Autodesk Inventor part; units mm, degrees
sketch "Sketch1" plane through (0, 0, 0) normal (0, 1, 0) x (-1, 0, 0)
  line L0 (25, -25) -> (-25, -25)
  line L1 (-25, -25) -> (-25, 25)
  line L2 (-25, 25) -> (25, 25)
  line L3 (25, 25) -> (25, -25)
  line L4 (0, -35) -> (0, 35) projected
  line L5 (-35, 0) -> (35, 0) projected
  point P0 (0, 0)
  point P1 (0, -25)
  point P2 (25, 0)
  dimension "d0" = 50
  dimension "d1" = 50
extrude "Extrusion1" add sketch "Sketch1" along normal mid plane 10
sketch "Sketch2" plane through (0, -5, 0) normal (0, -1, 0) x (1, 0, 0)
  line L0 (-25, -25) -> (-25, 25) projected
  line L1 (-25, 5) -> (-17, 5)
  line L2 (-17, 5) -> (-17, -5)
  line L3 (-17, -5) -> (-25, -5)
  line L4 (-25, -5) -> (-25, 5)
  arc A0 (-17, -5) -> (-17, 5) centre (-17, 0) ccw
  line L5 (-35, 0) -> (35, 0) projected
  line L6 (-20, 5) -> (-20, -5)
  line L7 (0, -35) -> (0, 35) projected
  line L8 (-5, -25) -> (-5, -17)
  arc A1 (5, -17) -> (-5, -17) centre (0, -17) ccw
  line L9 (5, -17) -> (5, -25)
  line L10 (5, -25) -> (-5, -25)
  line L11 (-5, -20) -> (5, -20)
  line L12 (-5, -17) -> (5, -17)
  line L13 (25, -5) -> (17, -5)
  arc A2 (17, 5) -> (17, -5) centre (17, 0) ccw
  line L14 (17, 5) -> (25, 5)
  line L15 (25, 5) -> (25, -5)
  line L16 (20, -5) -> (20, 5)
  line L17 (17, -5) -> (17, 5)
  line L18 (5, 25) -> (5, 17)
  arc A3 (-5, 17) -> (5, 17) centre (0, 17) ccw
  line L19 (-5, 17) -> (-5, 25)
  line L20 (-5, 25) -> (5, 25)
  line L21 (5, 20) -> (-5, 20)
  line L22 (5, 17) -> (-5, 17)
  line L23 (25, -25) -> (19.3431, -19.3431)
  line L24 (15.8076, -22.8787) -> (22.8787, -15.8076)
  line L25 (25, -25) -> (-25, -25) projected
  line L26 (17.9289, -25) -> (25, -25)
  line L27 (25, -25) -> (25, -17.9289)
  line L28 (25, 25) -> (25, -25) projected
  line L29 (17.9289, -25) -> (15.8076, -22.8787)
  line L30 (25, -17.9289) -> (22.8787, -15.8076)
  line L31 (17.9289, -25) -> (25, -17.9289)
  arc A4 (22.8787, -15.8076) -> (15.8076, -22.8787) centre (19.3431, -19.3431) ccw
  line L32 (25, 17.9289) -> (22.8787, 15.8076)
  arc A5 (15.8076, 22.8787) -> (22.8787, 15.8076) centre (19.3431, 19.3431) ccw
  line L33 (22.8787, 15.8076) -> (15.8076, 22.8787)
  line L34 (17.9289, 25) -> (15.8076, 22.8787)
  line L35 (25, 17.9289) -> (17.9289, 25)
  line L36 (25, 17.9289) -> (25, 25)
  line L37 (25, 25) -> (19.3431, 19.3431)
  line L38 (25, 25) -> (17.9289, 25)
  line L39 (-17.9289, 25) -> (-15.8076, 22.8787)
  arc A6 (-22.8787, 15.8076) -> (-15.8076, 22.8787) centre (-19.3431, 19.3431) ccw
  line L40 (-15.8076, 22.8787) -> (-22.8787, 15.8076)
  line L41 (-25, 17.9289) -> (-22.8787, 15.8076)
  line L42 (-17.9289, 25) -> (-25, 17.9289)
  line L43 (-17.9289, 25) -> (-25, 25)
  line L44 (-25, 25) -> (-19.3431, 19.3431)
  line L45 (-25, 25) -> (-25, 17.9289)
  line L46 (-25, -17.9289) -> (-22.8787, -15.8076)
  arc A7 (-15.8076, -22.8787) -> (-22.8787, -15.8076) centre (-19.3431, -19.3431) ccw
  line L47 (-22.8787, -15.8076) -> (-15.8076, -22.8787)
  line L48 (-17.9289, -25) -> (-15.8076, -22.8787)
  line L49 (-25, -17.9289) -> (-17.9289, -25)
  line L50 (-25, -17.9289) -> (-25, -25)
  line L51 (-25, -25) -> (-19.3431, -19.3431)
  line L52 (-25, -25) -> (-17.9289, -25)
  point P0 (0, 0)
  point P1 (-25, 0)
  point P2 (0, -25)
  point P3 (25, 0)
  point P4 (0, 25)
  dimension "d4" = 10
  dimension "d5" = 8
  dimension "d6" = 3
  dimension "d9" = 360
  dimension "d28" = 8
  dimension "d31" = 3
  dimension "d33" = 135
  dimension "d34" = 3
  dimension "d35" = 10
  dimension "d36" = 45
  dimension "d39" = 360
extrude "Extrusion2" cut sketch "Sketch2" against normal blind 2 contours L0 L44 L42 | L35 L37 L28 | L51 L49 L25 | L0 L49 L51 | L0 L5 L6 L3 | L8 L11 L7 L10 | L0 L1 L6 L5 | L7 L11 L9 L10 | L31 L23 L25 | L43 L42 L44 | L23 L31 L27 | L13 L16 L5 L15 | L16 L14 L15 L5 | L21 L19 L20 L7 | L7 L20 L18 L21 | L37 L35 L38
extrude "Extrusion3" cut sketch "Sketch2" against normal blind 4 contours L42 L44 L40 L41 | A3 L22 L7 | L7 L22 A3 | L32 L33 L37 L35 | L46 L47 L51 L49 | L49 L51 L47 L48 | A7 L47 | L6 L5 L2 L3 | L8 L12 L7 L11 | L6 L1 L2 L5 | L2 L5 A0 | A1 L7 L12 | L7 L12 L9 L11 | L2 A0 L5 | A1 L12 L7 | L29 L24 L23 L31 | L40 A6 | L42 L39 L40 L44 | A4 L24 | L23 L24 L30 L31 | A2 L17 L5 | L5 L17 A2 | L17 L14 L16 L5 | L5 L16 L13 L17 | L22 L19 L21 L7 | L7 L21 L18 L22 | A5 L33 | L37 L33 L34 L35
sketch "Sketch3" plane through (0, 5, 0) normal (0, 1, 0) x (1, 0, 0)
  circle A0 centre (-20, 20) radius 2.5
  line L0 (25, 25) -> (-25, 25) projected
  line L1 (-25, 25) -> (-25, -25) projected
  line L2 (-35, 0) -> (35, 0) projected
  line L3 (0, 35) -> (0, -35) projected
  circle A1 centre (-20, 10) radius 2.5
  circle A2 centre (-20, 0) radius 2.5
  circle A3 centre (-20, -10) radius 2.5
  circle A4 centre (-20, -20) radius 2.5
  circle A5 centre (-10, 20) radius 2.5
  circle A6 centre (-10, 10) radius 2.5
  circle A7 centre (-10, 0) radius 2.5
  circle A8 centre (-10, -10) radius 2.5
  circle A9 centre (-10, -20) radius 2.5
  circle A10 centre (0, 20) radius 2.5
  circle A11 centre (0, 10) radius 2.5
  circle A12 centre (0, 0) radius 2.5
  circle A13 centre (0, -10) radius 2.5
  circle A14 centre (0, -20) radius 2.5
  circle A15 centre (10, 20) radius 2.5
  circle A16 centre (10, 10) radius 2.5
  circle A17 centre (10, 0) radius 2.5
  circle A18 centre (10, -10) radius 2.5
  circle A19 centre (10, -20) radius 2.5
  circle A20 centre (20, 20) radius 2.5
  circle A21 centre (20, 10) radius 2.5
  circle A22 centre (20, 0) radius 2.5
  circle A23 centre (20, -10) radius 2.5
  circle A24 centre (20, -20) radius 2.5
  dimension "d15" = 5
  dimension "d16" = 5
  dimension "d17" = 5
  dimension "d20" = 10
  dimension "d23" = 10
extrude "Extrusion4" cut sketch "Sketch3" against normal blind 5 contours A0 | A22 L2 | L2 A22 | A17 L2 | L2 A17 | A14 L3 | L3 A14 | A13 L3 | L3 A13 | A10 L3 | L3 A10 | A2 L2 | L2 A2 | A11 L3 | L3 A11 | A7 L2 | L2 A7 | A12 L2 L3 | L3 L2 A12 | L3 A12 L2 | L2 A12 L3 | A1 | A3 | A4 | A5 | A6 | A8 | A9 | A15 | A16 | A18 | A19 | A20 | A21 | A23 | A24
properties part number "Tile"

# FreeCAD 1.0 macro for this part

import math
import FreeCAD as App
import Part
import Sketcher

V = App.Vector
Q = App.Units.Quantity

doc = App.newDocument("Part")
params = doc.addObject("Spreadsheet::Sheet", "Params")
for row, (alias, value) in enumerate([
    ("sketch1_width", "50 mm"),
    ("pad1_length", "10 mm"),
    ("sketch2_width", "10 mm"),
    ("sketch2_length", "10 mm"),
    ("sketch2_width2", "5 mm"),
    ("pocket1_length", "2 mm"),
    ("sketch3_radius", "5 mm"),
    ("sketch3_width", "3 mm"),
    ("sketch3_length", "3 mm"),
    ("pocket2_length", "4 mm"),
    ("sketch4_diameter", "5 mm"),
    ("pocket3_length", "5 mm"),
], start=1):
    params.set(f"A{row}", alias)
    params.set(f"B{row}", "=" + value)
    params.setAlias(f"B{row}", alias)

body = doc.addObject("PartDesign::Body", "Body")

sketch1 = body.newObject("Sketcher::SketchObject", "Sketch")
sketch1.AttachmentSupport = (doc.getObject("XZ_Plane"), [""])
sketch1.MapMode = "FlatFace"
sketch1.addGeometry([
    Part.LineSegment(V(-25, -25, 0), V(-25, 25, 0)),
    Part.LineSegment(V(-25, 25, 0), V(25, 25, 0)),
    Part.LineSegment(V(25, 25, 0), V(25, -25, 0)),
    Part.LineSegment(V(25, -25, 0), V(-25, -25, 0)),
], False)
sketch1.addConstraint([
    Sketcher.Constraint("Coincident", 0, 2, 1, 1),
    Sketcher.Constraint("Coincident", 1, 2, 2, 1),
    Sketcher.Constraint("Coincident", 2, 2, 3, 1),
    Sketcher.Constraint("Coincident", 3, 2, 0, 1),
    Sketcher.Constraint("Vertical", 0),
    Sketcher.Constraint("Horizontal", 1),
    Sketcher.Constraint("Vertical", 2),
    Sketcher.Constraint("Horizontal", 3),
    Sketcher.Constraint("Symmetric", 0, 2, 2, 2, -1, 1),
    Sketcher.Constraint("Equal", 3, 0),
    Sketcher.Constraint("DistanceX", 1, 1, 1, 2, Q("50 mm")),
])
sketch1.setExpression("Constraints[10]", "Params.sketch1_width")
pad1 = body.newObject("PartDesign::Pad", "Pad")
pad1.Profile = sketch1
pad1.setExpression("Length", "Params.pad1_length")
pad1.Midplane = True

sketch2 = body.newObject("Sketcher::SketchObject", "Sketch001")
sketch2.AttachmentSupport = (doc.getObject("XZ_Plane"), [""])
sketch2.MapMode = "FlatFace"
sketch2.AttachmentOffset = App.Placement(V(0, 0, 5), App.Rotation())
sketch2.addGeometry([
    Part.LineSegment(V(-25, 25, 0), V(-25, 18, 0)),
    Part.LineSegment(V(-25, 18, 0), V(-18, 25, 0)),
    Part.LineSegment(V(-18, 25, 0), V(-25, 25, 0)),
    Part.LineSegment(V(25, 18, 0), V(25, 25, 0)),
    Part.LineSegment(V(25, 25, 0), V(18, 25, 0)),
    Part.LineSegment(V(18, 25, 0), V(25, 18, 0)),
    Part.LineSegment(V(-18, -25, 0), V(-25, -18, 0)),
    Part.LineSegment(V(-25, -18, 0), V(-25, -25, 0)),
    Part.LineSegment(V(-25, -25, 0), V(-18, -25, 0)),
    Part.LineSegment(V(-25, -5, 0), V(-20, -5, 0)),
    Part.LineSegment(V(-20, -5, 0), V(-20, 5, 0)),
    Part.LineSegment(V(-20, 5, 0), V(-25, 5, 0)),
    Part.LineSegment(V(-25, 5, 0), V(-25, -5, 0)),
    Part.LineSegment(V(-5, -20, 0), V(-5, -25, 0)),
    Part.LineSegment(V(-5, -25, 0), V(5, -25, 0)),
    Part.LineSegment(V(5, -25, 0), V(5, -20, 0)),
    Part.LineSegment(V(5, -20, 0), V(-5, -20, 0)),
    Part.LineSegment(V(18, -25, 0), V(25, -25, 0)),
    Part.LineSegment(V(25, -25, 0), V(25, -18, 0)),
    Part.LineSegment(V(25, -18, 0), V(18, -25, 0)),
    Part.LineSegment(V(20, -5, 0), V(25, -5, 0)),
    Part.LineSegment(V(25, -5, 0), V(25, 5, 0)),
    Part.LineSegment(V(25, 5, 0), V(20, 5, 0)),
    Part.LineSegment(V(20, 5, 0), V(20, -5, 0)),
    Part.LineSegment(V(-5, 20, 0), V(5, 20, 0)),
    Part.LineSegment(V(5, 20, 0), V(5, 25, 0)),
    Part.LineSegment(V(5, 25, 0), V(-5, 25, 0)),
    Part.LineSegment(V(-5, 25, 0), V(-5, 20, 0)),
], False)
sketch2.addConstraint([
    Sketcher.Constraint("Coincident", 0, 2, 1, 1),
    Sketcher.Constraint("Coincident", 1, 2, 2, 1),
    Sketcher.Constraint("Coincident", 2, 2, 0, 1),
    Sketcher.Constraint("Coincident", 3, 2, 4, 1),
    Sketcher.Constraint("Coincident", 4, 2, 5, 1),
    Sketcher.Constraint("Coincident", 5, 2, 3, 1),
    Sketcher.Constraint("Coincident", 6, 2, 7, 1),
    Sketcher.Constraint("Coincident", 7, 2, 8, 1),
    Sketcher.Constraint("Coincident", 8, 2, 6, 1),
    Sketcher.Constraint("Coincident", 9, 2, 10, 1),
    Sketcher.Constraint("Coincident", 10, 2, 11, 1),
    Sketcher.Constraint("Coincident", 11, 2, 12, 1),
    Sketcher.Constraint("Coincident", 12, 2, 9, 1),
    Sketcher.Constraint("Coincident", 13, 2, 14, 1),
    Sketcher.Constraint("Coincident", 14, 2, 15, 1),
    Sketcher.Constraint("Coincident", 15, 2, 16, 1),
    Sketcher.Constraint("Coincident", 16, 2, 13, 1),
    Sketcher.Constraint("Coincident", 17, 2, 18, 1),
    Sketcher.Constraint("Coincident", 18, 2, 19, 1),
    Sketcher.Constraint("Coincident", 19, 2, 17, 1),
    Sketcher.Constraint("Coincident", 20, 2, 21, 1),
    Sketcher.Constraint("Coincident", 21, 2, 22, 1),
    Sketcher.Constraint("Coincident", 22, 2, 23, 1),
    Sketcher.Constraint("Coincident", 23, 2, 20, 1),
    Sketcher.Constraint("Coincident", 24, 2, 25, 1),
    Sketcher.Constraint("Coincident", 25, 2, 26, 1),
    Sketcher.Constraint("Coincident", 26, 2, 27, 1),
    Sketcher.Constraint("Coincident", 27, 2, 24, 1),
    Sketcher.Constraint("Vertical", 0),
    Sketcher.Constraint("Horizontal", 2),
    Sketcher.Constraint("Vertical", 3),
    Sketcher.Constraint("Horizontal", 4),
    Sketcher.Constraint("Vertical", 7),
    Sketcher.Constraint("Horizontal", 8),
    Sketcher.Constraint("Horizontal", 9),
    Sketcher.Constraint("Vertical", 10),
    Sketcher.Constraint("Horizontal", 11),
    Sketcher.Constraint("Vertical", 12),
    Sketcher.Constraint("Vertical", 13),
    Sketcher.Constraint("Horizontal", 14),
    Sketcher.Constraint("Vertical", 15),
    Sketcher.Constraint("Horizontal", 16),
    Sketcher.Constraint("Horizontal", 17),
    Sketcher.Constraint("Vertical", 18),
    Sketcher.Constraint("Horizontal", 20),
    Sketcher.Constraint("Vertical", 21),
    Sketcher.Constraint("Horizontal", 22),
    Sketcher.Constraint("Vertical", 23),
    Sketcher.Constraint("Horizontal", 24),
    Sketcher.Constraint("Vertical", 25),
    Sketcher.Constraint("Horizontal", 26),
    Sketcher.Constraint("Vertical", 27),
    Sketcher.Constraint("Symmetric", 5, 2, 6, 2, -1, 1),
    Sketcher.Constraint("Symmetric", 4, 2, 8, 2, -1, 1),
    Sketcher.Constraint("Symmetric", 2, 2, 17, 2, -1, 1),
    Sketcher.Constraint("Symmetric", 11, 2, 20, 2, -1, 1),
    Sketcher.Constraint("Symmetric", 9, 2, 22, 2, -1, 1),
    Sketcher.Constraint("Symmetric", 16, 2, 24, 2, -1, 1),
    Sketcher.Constraint("Symmetric", 14, 2, 26, 2, -1, 1),
    Sketcher.Constraint("Symmetric", 2, 2, 3, 2, -2),
    Sketcher.Constraint("Perpendicular", 1, 5),
    Sketcher.Constraint("Perpendicular", 6, 19),
    Sketcher.Constraint("Horizontal", 0, 2, 5, 2),
    Sketcher.Constraint("Horizontal", 8, 2, 13, 2),
    Sketcher.Constraint("Horizontal", 6, 2, 18, 2),
    Sketcher.Constraint("Horizontal", 12, 2, 20, 2),
    Sketcher.Constraint("Vertical", 1, 2, 8, 2),
    Sketcher.Constraint("Vertical", 7, 2, 11, 2),
    Sketcher.Constraint("Vertical", 15, 2, 24, 2),
    Sketcher.Constraint("Equal", 26, 10),
    Sketcher.Constraint("Equal", 22, 13),
    Sketcher.Constraint("DistanceX", 14, 1, 14, 2, Q("10 mm")),
    Sketcher.Constraint("Distance", 1, Q("10 mm")),
    Sketcher.Constraint("DistanceX", 9, 1, 9, 2, Q("5 mm")),
    Sketcher.Constraint("DistanceX", 0, 2, -1, 1, Q("25 mm")),
    Sketcher.Constraint("DistanceY", -1, 1, 1, 2, Q("25 mm")),
])
sketch2.setExpression("Constraints[71]", "Params.sketch2_width")
sketch2.setExpression("Constraints[72]", "Params.sketch2_length")
sketch2.setExpression("Constraints[73]", "Params.sketch2_width2")
pocket1 = body.newObject("PartDesign::Pocket", "Pocket")
pocket1.Profile = sketch2
pocket1.setExpression("Length", "Params.pocket1_length")

sketch3 = body.newObject("Sketcher::SketchObject", "Sketch002")
sketch3.AttachmentSupport = (doc.getObject("XZ_Plane"), [""])
sketch3.MapMode = "FlatFace"
sketch3.AttachmentOffset = App.Placement(V(0, 0, 5), App.Rotation())
sketch3.addGeometry([
    Part.LineSegment(V(-25, 17.9, 0), V(-22.9, 15.8, 0)),
    Part.ArcOfCircle(Part.Circle(V(-19.3, 19.3, 0), V(0, 0, 1), 5), math.radians(-135), math.radians(45)),
    Part.LineSegment(V(-15.8, 22.9, 0), V(-17.9, 25, 0)),
    Part.LineSegment(V(-17.9, 25, 0), V(-25, 17.9, 0)),
    Part.ArcOfCircle(Part.Circle(V(0, 17, 0), V(0, 0, 1), 5), math.radians(180), math.radians(360)),
    Part.LineSegment(V(5, 17, 0), V(5, 20, 0)),
    Part.LineSegment(V(5, 20, 0), V(-5, 20, 0)),
    Part.LineSegment(V(-5, 20, 0), V(-5, 17, 0)),
    Part.LineSegment(V(22.9, 15.8, 0), V(25, 17.9, 0)),
    Part.LineSegment(V(25, 17.9, 0), V(17.9, 25, 0)),
    Part.LineSegment(V(17.9, 25, 0), V(15.8, 22.9, 0)),
    Part.ArcOfCircle(Part.Circle(V(19.3, 19.3, 0), V(0, 0, 1), 5), math.radians(135), math.radians(315)),
    Part.LineSegment(V(-22.9, -15.8, 0), V(-25, -17.9, 0)),
    Part.LineSegment(V(-25, -17.9, 0), V(-17.9, -25, 0)),
    Part.LineSegment(V(-17.9, -25, 0), V(-15.8, -22.9, 0)),
    Part.ArcOfCircle(Part.Circle(V(-19.3, -19.3, 0), V(0, 0, 1), 5), math.radians(-45), math.radians(135)),
    Part.LineSegment(V(-20, -5, 0), V(-17, -5, 0)),
    Part.ArcOfCircle(Part.Circle(V(-17, 0, 0), V(0, 0, 1), 5), math.radians(-90), math.radians(90)),
    Part.LineSegment(V(-17, 5, 0), V(-20, 5, 0)),
    Part.LineSegment(V(-20, 5, 0), V(-20, -5, 0)),
    Part.LineSegment(V(-5, -17, 0), V(-5, -20, 0)),
    Part.LineSegment(V(-5, -20, 0), V(5, -20, 0)),
    Part.LineSegment(V(5, -20, 0), V(5, -17, 0)),
    Part.ArcOfCircle(Part.Circle(V(0, -17, 0), V(0, 0, 1), 5), math.radians(0), math.radians(180)),
    Part.LineSegment(V(15.8, -22.9, 0), V(17.9, -25, 0)),
    Part.LineSegment(V(17.9, -25, 0), V(25, -17.9, 0)),
    Part.LineSegment(V(25, -17.9, 0), V(22.9, -15.8, 0)),
    Part.ArcOfCircle(Part.Circle(V(19.3, -19.3, 0), V(0, 0, 1), 5), math.radians(45), math.radians(225)),
    Part.ArcOfCircle(Part.Circle(V(17, 0, 0), V(0, 0, 1), 5), math.radians(90), math.radians(270)),
    Part.LineSegment(V(17, -5, 0), V(20, -5, 0)),
    Part.LineSegment(V(20, -5, 0), V(20, 5, 0)),
    Part.LineSegment(V(20, 5, 0), V(17, 5, 0)),
], False)
sketch3.addConstraint([
    Sketcher.Constraint("Tangent", 0, 2, 1, 1),
    Sketcher.Constraint("Tangent", 1, 2, 2, 1),
    Sketcher.Constraint("Coincident", 2, 2, 3, 1),
    Sketcher.Constraint("Coincident", 3, 2, 0, 1),
    Sketcher.Constraint("Tangent", 4, 2, 5, 1),
    Sketcher.Constraint("Coincident", 5, 2, 6, 1),
    Sketcher.Constraint("Coincident", 6, 2, 7, 1),
    Sketcher.Constraint("Tangent", 7, 2, 4, 1),
    Sketcher.Constraint("Coincident", 8, 2, 9, 1),
    Sketcher.Constraint("Coincident", 9, 2, 10, 1),
    Sketcher.Constraint("Tangent", 10, 2, 11, 1),
    Sketcher.Constraint("Tangent", 11, 2, 8, 1),
    Sketcher.Constraint("Coincident", 12, 2, 13, 1),
    Sketcher.Constraint("Coincident", 13, 2, 14, 1),
    Sketcher.Constraint("Tangent", 14, 2, 15, 1),
    Sketcher.Constraint("Tangent", 15, 2, 12, 1),
    Sketcher.Constraint("Tangent", 16, 2, 17, 1),
    Sketcher.Constraint("Tangent", 17, 2, 18, 1),
    Sketcher.Constraint("Coincident", 18, 2, 19, 1),
    Sketcher.Constraint("Coincident", 19, 2, 16, 1),
    Sketcher.Constraint("Coincident", 20, 2, 21, 1),
    Sketcher.Constraint("Coincident", 21, 2, 22, 1),
    Sketcher.Constraint("Tangent", 22, 2, 23, 1),
    Sketcher.Constraint("Tangent", 23, 2, 20, 1),
    Sketcher.Constraint("Coincident", 24, 2, 25, 1),
    Sketcher.Constraint("Coincident", 25, 2, 26, 1),
    Sketcher.Constraint("Tangent", 26, 2, 27, 1),
    Sketcher.Constraint("Tangent", 27, 2, 24, 1),
    Sketcher.Constraint("Tangent", 28, 2, 29, 1),
    Sketcher.Constraint("Coincident", 29, 2, 30, 1),
    Sketcher.Constraint("Coincident", 30, 2, 31, 1),
    Sketcher.Constraint("Tangent", 31, 2, 28, 1),
    Sketcher.Constraint("Vertical", 5),
    Sketcher.Constraint("Horizontal", 6),
    Sketcher.Constraint("Vertical", 7),
    Sketcher.Constraint("Horizontal", 16),
    Sketcher.Constraint("Horizontal", 18),
    Sketcher.Constraint("Vertical", 19),
    Sketcher.Constraint("Vertical", 20),
    Sketcher.Constraint("Horizontal", 21),
    Sketcher.Constraint("Vertical", 22),
    Sketcher.Constraint("Horizontal", 29),
    Sketcher.Constraint("Vertical", 30),
    Sketcher.Constraint("Horizontal", 31),
    Sketcher.Constraint("Equal", 1, 4),
    Sketcher.Constraint("Equal", 4, 11),
    Sketcher.Constraint("Equal", 11, 15),
    Sketcher.Constraint("Equal", 15, 17),
    Sketcher.Constraint("Equal", 17, 23),
    Sketcher.Constraint("Equal", 23, 27),
    Sketcher.Constraint("Equal", 27, 28),
    Sketcher.Constraint("Symmetric", 11, 3, 15, 3, -1, 1),
    Sketcher.Constraint("Symmetric", 4, 3, 23, 3, -1, 1),
    Sketcher.Constraint("Symmetric", 1, 3, 27, 3, -1, 1),
    Sketcher.Constraint("Symmetric", 17, 3, 28, 3, -1, 1),
    Sketcher.Constraint("Symmetric", 8, 2, 12, 2, -1, 1),
    Sketcher.Constraint("Symmetric", 9, 2, 13, 2, -1, 1),
    Sketcher.Constraint("Symmetric", 2, 2, 24, 2, -1, 1),
    Sketcher.Constraint("Symmetric", 3, 2, 25, 2, -1, 1),
    Sketcher.Constraint("Symmetric", 1, 3, 11, 3, -2),
    Sketcher.Constraint("Symmetric", 3, 2, 8, 2, -2),
    Sketcher.Constraint("Symmetric", 2, 2, 9, 2, -2),
    Sketcher.Constraint("Symmetric", 19, 2, 29, 2, -2),
    Sketcher.Constraint("Symmetric", 6, 2, 20, 2, -1),
    Sketcher.Constraint("Parallel", 0, 2),
    Sketcher.Constraint("Perpendicular", 2, 3),
    Sketcher.Constraint("Parallel", 3, 8),
    Sketcher.Constraint("Equal", 31, 5),
    Sketcher.Constraint("Radius", 1, Q("5 mm")),
    Sketcher.Constraint("DistanceX", 16, 1, 16, 2, Q("3 mm")),
    Sketcher.Constraint("Distance", 0, Q("3 mm")),
    Sketcher.Constraint("DistanceY", 4, 3, 2, 2, Q("8 mm")),
    Sketcher.Constraint("DistanceX", 3, 2, 17, 3, Q("8 mm")),
    Sketcher.Constraint("DistanceY", -1, 1, 4, 3, Q("17 mm")),
    Sketcher.Constraint("DistanceX", 17, 3, -1, 1, Q("17 mm")),
])
sketch3.setExpression("Constraints[68]", "Params.sketch3_radius")
sketch3.setExpression("Constraints[69]", "Params.sketch3_width")
sketch3.setExpression("Constraints[70]", "Params.sketch3_length")
pocket2 = body.newObject("PartDesign::Pocket", "Pocket001")
pocket2.Profile = sketch3
pocket2.setExpression("Length", "Params.pocket2_length")

sketch4 = body.newObject("Sketcher::SketchObject", "Sketch003")
sketch4.AttachmentSupport = (doc.getObject("XZ_Plane"), [""])
sketch4.MapMode = "FlatFace"
sketch4.AttachmentOffset = App.Placement(V(0, 0, -5), App.Rotation())
sketch4.addGeometry([
    Part.Circle(V(-20, -20, 0), V(0, 0, 1), 2.5),
    Part.Circle(V(20, 0, 0), V(0, 0, 1), 2.5),
    Part.Circle(V(10, 0, 0), V(0, 0, 1), 2.5),
    Part.Circle(V(0, 20, 0), V(0, 0, 1), 2.5),
    Part.Circle(V(0, 10, 0), V(0, 0, 1), 2.5),
    Part.Circle(V(0, -20, 0), V(0, 0, 1), 2.5),
    Part.Circle(V(-20, 0, 0), V(0, 0, 1), 2.5),
    Part.Circle(V(0, -10, 0), V(0, 0, 1), 2.5),
    Part.Circle(V(-10, 0, 0), V(0, 0, 1), 2.5),
    Part.Circle(V(0, 0, 0), V(0, 0, 1), 2.5),
    Part.Circle(V(-20, -10, 0), V(0, 0, 1), 2.5),
    Part.Circle(V(-20, 10, 0), V(0, 0, 1), 2.5),
    Part.Circle(V(-20, 20, 0), V(0, 0, 1), 2.5),
    Part.Circle(V(-10, -20, 0), V(0, 0, 1), 2.5),
    Part.Circle(V(-10, -10, 0), V(0, 0, 1), 2.5),
    Part.Circle(V(-10, 10, 0), V(0, 0, 1), 2.5),
    Part.Circle(V(-10, 20, 0), V(0, 0, 1), 2.5),
    Part.Circle(V(10, -20, 0), V(0, 0, 1), 2.5),
    Part.Circle(V(10, -10, 0), V(0, 0, 1), 2.5),
    Part.Circle(V(10, 10, 0), V(0, 0, 1), 2.5),
    Part.Circle(V(10, 20, 0), V(0, 0, 1), 2.5),
    Part.Circle(V(20, -20, 0), V(0, 0, 1), 2.5),
    Part.Circle(V(20, -10, 0), V(0, 0, 1), 2.5),
    Part.Circle(V(20, 10, 0), V(0, 0, 1), 2.5),
    Part.Circle(V(20, 20, 0), V(0, 0, 1), 2.5),
], False)
sketch4.addConstraint([
    Sketcher.Constraint("Coincident", 9, 3, -1, 1),
    Sketcher.Constraint("Equal", 0, 1),
    Sketcher.Constraint("Equal", 1, 2),
    Sketcher.Constraint("Equal", 2, 3),
    Sketcher.Constraint("Equal", 3, 4),
    Sketcher.Constraint("Equal", 4, 5),
    Sketcher.Constraint("Equal", 5, 6),
    Sketcher.Constraint("Equal", 6, 7),
    Sketcher.Constraint("Equal", 7, 8),
    Sketcher.Constraint("Equal", 8, 9),
    Sketcher.Constraint("Equal", 9, 10),
    Sketcher.Constraint("Equal", 10, 11),
    Sketcher.Constraint("Equal", 11, 12),
    Sketcher.Constraint("Equal", 12, 13),
    Sketcher.Constraint("Equal", 13, 14),
    Sketcher.Constraint("Equal", 14, 15),
    Sketcher.Constraint("Equal", 15, 16),
    Sketcher.Constraint("Equal", 16, 17),
    Sketcher.Constraint("Equal", 17, 18),
    Sketcher.Constraint("Equal", 18, 19),
    Sketcher.Constraint("Equal", 19, 20),
    Sketcher.Constraint("Equal", 20, 21),
    Sketcher.Constraint("Equal", 21, 22),
    Sketcher.Constraint("Equal", 22, 23),
    Sketcher.Constraint("Equal", 23, 24),
    Sketcher.Constraint("Symmetric", 3, 3, 5, 3, -1, 1),
    Sketcher.Constraint("Symmetric", 1, 3, 6, 3, -1, 1),
    Sketcher.Constraint("Symmetric", 4, 3, 7, 3, -1, 1),
    Sketcher.Constraint("Symmetric", 2, 3, 8, 3, -1, 1),
    Sketcher.Constraint("Symmetric", 16, 3, 17, 3, -1, 1),
    Sketcher.Constraint("Symmetric", 15, 3, 18, 3, -1, 1),
    Sketcher.Constraint("Symmetric", 14, 3, 19, 3, -1, 1),
    Sketcher.Constraint("Symmetric", 13, 3, 20, 3, -1, 1),
    Sketcher.Constraint("Symmetric", 12, 3, 21, 3, -1, 1),
    Sketcher.Constraint("Symmetric", 11, 3, 22, 3, -1, 1),
    Sketcher.Constraint("Symmetric", 10, 3, 23, 3, -1, 1),
    Sketcher.Constraint("Symmetric", 0, 3, 24, 3, -1, 1),
    Sketcher.Constraint("Symmetric", 13, 3, 17, 3, -2),
    Sketcher.Constraint("Symmetric", 14, 3, 18, 3, -2),
    Sketcher.Constraint("Symmetric", 0, 3, 21, 3, -2),
    Sketcher.Constraint("Symmetric", 10, 3, 22, 3, -2),
    Sketcher.Constraint("PointOnObject", 1, 3, -1),
    Sketcher.Constraint("PointOnObject", 2, 3, -1),
    Sketcher.Constraint("PointOnObject", 3, 3, -2),
    Sketcher.Constraint("PointOnObject", 4, 3, -2),
    Sketcher.Constraint("Horizontal", 0, 3, 5, 3),
    Sketcher.Constraint("Horizontal", 7, 3, 10, 3),
    Sketcher.Constraint("Horizontal", 5, 3, 13, 3),
    Sketcher.Constraint("Horizontal", 10, 3, 14, 3),
    Sketcher.Constraint("Vertical", 0, 3, 6, 3),
    Sketcher.Constraint("Vertical", 6, 3, 10, 3),
    Sketcher.Constraint("Vertical", 8, 3, 13, 3),
    Sketcher.Constraint("Vertical", 13, 3, 14, 3),
    Sketcher.Constraint("Diameter", 0, Q("5 mm")),
    Sketcher.Constraint("DistanceX", -1, 1, 2, 3, Q("10 mm")),
    Sketcher.Constraint("DistanceY", -1, 1, 4, 3, Q("10 mm")),
    Sketcher.Constraint("DistanceX", 2, 3, 1, 3, Q("10 mm")),
    Sketcher.Constraint("DistanceY", 4, 3, 3, 3, Q("10 mm")),
])
sketch4.setExpression("Constraints[53]", "Params.sketch4_diameter")
pocket3 = body.newObject("PartDesign::Pocket", "Pocket002")
pocket3.Profile = sketch4
pocket3.setExpression("Length", "Params.pocket3_length")
pocket3.Reversed = True

doc.recompute()
